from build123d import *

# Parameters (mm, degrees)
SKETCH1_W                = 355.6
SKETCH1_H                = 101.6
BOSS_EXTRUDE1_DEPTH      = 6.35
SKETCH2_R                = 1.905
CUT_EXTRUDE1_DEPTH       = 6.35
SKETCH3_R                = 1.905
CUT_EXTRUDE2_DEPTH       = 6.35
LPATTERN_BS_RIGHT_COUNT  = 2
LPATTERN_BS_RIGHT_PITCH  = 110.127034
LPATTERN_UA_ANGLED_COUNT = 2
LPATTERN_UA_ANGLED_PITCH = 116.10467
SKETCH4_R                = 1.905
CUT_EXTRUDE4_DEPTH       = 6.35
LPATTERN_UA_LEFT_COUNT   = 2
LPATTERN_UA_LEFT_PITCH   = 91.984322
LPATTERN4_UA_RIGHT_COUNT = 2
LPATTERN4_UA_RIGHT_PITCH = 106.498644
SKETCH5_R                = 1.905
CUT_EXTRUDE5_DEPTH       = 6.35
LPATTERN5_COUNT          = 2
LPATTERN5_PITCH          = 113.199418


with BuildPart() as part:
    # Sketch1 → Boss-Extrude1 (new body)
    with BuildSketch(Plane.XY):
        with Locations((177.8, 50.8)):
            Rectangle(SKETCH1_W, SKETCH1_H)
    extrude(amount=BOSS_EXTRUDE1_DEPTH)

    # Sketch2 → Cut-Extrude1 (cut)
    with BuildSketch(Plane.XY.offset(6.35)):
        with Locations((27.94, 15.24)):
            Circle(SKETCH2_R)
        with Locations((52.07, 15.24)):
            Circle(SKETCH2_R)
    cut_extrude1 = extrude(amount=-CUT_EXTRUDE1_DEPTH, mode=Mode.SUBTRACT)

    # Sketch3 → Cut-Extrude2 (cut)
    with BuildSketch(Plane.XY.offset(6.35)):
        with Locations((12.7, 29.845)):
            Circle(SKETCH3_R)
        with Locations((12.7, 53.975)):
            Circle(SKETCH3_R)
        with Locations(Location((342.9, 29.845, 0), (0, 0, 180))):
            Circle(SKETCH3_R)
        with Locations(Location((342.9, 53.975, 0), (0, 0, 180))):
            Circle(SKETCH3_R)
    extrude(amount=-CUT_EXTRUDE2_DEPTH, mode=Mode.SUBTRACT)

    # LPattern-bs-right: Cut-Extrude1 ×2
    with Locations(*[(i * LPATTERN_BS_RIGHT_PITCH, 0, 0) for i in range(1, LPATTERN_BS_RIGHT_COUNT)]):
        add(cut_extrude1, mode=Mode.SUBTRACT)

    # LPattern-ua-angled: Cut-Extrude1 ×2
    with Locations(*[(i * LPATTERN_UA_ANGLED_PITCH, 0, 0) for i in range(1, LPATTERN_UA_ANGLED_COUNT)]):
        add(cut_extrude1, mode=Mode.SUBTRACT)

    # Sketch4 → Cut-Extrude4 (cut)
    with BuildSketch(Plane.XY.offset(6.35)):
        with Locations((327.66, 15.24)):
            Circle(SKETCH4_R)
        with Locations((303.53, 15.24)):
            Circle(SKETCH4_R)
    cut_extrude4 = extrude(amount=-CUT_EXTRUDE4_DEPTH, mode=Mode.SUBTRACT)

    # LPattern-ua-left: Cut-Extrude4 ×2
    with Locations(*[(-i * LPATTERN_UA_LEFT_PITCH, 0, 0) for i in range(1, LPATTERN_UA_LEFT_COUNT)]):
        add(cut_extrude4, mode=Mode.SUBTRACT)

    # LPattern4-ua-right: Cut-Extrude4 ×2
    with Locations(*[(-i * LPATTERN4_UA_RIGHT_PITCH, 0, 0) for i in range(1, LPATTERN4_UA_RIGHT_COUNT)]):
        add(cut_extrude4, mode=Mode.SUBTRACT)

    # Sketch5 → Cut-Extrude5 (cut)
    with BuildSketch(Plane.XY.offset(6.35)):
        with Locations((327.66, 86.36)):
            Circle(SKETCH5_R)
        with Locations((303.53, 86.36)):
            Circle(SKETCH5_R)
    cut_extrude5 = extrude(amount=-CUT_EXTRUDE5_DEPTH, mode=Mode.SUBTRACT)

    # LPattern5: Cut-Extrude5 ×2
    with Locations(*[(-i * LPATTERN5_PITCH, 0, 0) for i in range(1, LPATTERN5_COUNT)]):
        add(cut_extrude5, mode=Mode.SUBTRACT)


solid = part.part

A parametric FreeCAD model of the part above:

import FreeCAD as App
import Part
import Sketcher

V = App.Vector
Q = App.Units.Quantity

doc = App.newDocument("Part")
body = doc.addObject("PartDesign::Body", "Body")

# Sketch on XY plane
sketch1 = body.newObject("Sketcher::SketchObject", "Sketch")
sketch1.AttachmentSupport = (doc.getObject("XY_Plane"), [""])
sketch1.MapMode = "FlatFace"
sketch1.addGeometry([
    Part.LineSegment(V(0, 102, 0), V(0, 0, 0)),
    Part.LineSegment(V(0, 0, 0), V(356, 0, 0)),
    Part.LineSegment(V(356, 0, 0), V(356, 102, 0)),
    Part.LineSegment(V(356, 102, 0), V(0, 102, 0)),
], False)
sketch1.addConstraint([
    Sketcher.Constraint("Coincident", 0, 2, 1, 1),
    Sketcher.Constraint("Coincident", 1, 2, 2, 1),
    Sketcher.Constraint("Coincident", 2, 2, 3, 1),
    Sketcher.Constraint("Coincident", 3, 2, 0, 1),
    Sketcher.Constraint("Vertical", 0),
    Sketcher.Constraint("Horizontal", 1),
    Sketcher.Constraint("Vertical", 2),
    Sketcher.Constraint("Horizontal", 3),
    Sketcher.Constraint("Coincident", 0, 2, -1, 1),
    Sketcher.Constraint("DistanceX", 1, 1, 1, 2, Q("14 in")),
    Sketcher.Constraint("DistanceY", 0, 2, 0, 1, Q("4 in")),
])
pad1 = body.newObject("PartDesign::Pad", "Pad")
pad1.Profile = sketch1
pad1.Length = Q("0.25 in")

# Sketch on XY plane
sketch2 = body.newObject("Sketcher::SketchObject", "Sketch001")
sketch2.AttachmentSupport = (doc.getObject("XY_Plane"), [""])
sketch2.MapMode = "FlatFace"
sketch2.AttachmentOffset = App.Placement(V(0, 0, 0.25 * 25.4), App.Rotation())
sketch2.addGeometry([
    Part.Circle(V(27.9, 15.2, 0), V(0, 0, 1), 1.9),
    Part.Circle(V(52.1, 15.2, 0), V(0, 0, 1), 1.9),
], False)
sketch2.addConstraint([
    Sketcher.Constraint("Equal", 0, 1),
    Sketcher.Constraint("Horizontal", 0, 3, 1, 3),
    Sketcher.Constraint("Diameter", 0, Q("0.15 in")),
    Sketcher.Constraint("DistanceX", -1, 1, 0, 3, Q("1.1 in")),
    Sketcher.Constraint("DistanceY", -1, 1, 0, 3, Q("0.6 in")),
    Sketcher.Constraint("DistanceX", -1, 1, 1, 3, Q("2.05 in")),
])
pocket1 = body.newObject("PartDesign::Pocket", "Pocket")
pocket1.Profile = sketch2
pocket1.Length = Q("0.25 in")

# Sketch on XY plane
sketch3 = body.newObject("Sketcher::SketchObject", "Sketch002")
sketch3.AttachmentSupport = (doc.getObject("XY_Plane"), [""])
sketch3.MapMode = "FlatFace"
sketch3.AttachmentOffset = App.Placement(V(0, 0, 0.25 * 25.4), App.Rotation())
sketch3.addGeometry([
    Part.Circle(V(12.7, 29.8, 0), V(0, 0, 1), 1.9),
    Part.Circle(V(12.7, 54, 0), V(0, 0, 1), 1.9),
    Part.Circle(V(342.9, 29.8, 0), V(0, 0, 1), 1.9),
    Part.Circle(V(342.9, 54, 0), V(0, 0, 1), 1.9),
], False)
sketch3.addConstraint([
    Sketcher.Constraint("Equal", 0, 1),
    Sketcher.Constraint("Equal", 1, 2),
    Sketcher.Constraint("Equal", 2, 3),
    Sketcher.Constraint("Horizontal", 0, 3, 2, 3),
    Sketcher.Constraint("Horizontal", 1, 3, 3, 3),
    Sketcher.Constraint("Vertical", 0, 3, 1, 3),
    Sketcher.Constraint("Vertical", 2, 3, 3, 3),
    Sketcher.Constraint("Diameter", 0, Q("0.15 in")),
    Sketcher.Constraint("DistanceX", 0, 3, 2, 3, Q("13 in")),
    Sketcher.Constraint("DistanceX", -1, 1, 0, 3, Q("0.5 in")),
    Sketcher.Constraint("DistanceY", 0, 3, 1, 3, Q("0.95 in")),
    Sketcher.Constraint("DistanceY", -1, 1, 0, 3, Q("1.175 in")),
])
pocket2 = body.newObject("PartDesign::Pocket", "Pocket001")
pocket2.Profile = sketch3
pocket2.Length = Q("0.25 in")
doc.recompute()

linearpattern = body.newObject("PartDesign::LinearPattern", "LinearPattern")
linearpattern.Originals = [pocket1]
linearpattern.Direction = (doc.getObject("X_Axis"), [""])
linearpattern.Mode = "offset"
linearpattern.Offset = 110.127034
linearpattern.Occurrences = 2
body.Tip = linearpattern
doc.recompute()

linearpattern2 = body.newObject("PartDesign::LinearPattern", "LinearPattern001")
linearpattern2.Originals = [pocket1]
linearpattern2.Direction = (doc.getObject("X_Axis"), [""])
linearpattern2.Mode = "offset"
linearpattern2.Offset = 116.10467
linearpattern2.Occurrences = 2
body.Tip = linearpattern2

# Sketch on XY plane
sketch4 = body.newObject("Sketcher::SketchObject", "Sketch003")
sketch4.AttachmentSupport = (doc.getObject("XY_Plane"), [""])
sketch4.MapMode = "FlatFace"
sketch4.AttachmentOffset = App.Placement(V(0, 0, 0.25 * 25.4), App.Rotation())
sketch4.addGeometry([
    Part.Circle(V(327.7, 15.2, 0), V(0, 0, 1), 1.9),
    Part.Circle(V(303.5, 15.2, 0), V(0, 0, 1), 1.9),
], False)
sketch4.addConstraint([
    Sketcher.Constraint("Equal", 0, 1),
    Sketcher.Constraint("Horizontal", 0, 3, 1, 3),
    Sketcher.Constraint("Diameter", 0, Q("0.15 in")),
    Sketcher.Constraint("DistanceX", -1, 1, 0, 3, Q("12.9 in")),
    Sketcher.Constraint("DistanceY", -1, 1, 0, 3, Q("0.6 in")),
    Sketcher.Constraint("DistanceX", -1, 1, 1, 3, Q("11.95 in")),
])
pocket3 = body.newObject("PartDesign::Pocket", "Pocket002")
pocket3.Profile = sketch4
pocket3.Length = Q("0.25 in")
doc.recompute()

linearpattern3 = body.newObject("PartDesign::LinearPattern", "LinearPattern002")
linearpattern3.Originals = [pocket3]
linearpattern3.Direction = (doc.getObject("X_Axis"), [""])
linearpattern3.Mode = "offset"
linearpattern3.Offset = 91.984322
linearpattern3.Occurrences = 2
linearpattern3.Reversed = True
body.Tip = linearpattern3
doc.recompute()

linearpattern4 = body.newObject("PartDesign::LinearPattern", "LinearPattern003")
linearpattern4.Originals = [pocket3]
linearpattern4.Direction = (doc.getObject("X_Axis"), [""])
linearpattern4.Mode = "offset"
linearpattern4.Offset = 106.498644
linearpattern4.Occurrences = 2
linearpattern4.Reversed = True
body.Tip = linearpattern4

# Sketch on XY plane
sketch5 = body.newObject("Sketcher::SketchObject", "Sketch004")
sketch5.AttachmentSupport = (doc.getObject("XY_Plane"), [""])
sketch5.MapMode = "FlatFace"
sketch5.AttachmentOffset = App.Placement(V(0, 0, 0.25 * 25.4), App.Rotation())
sketch5.addGeometry([
    Part.Circle(V(327.7, 86.4, 0), V(0, 0, 1), 1.9),
    Part.Circle(V(303.5, 86.4, 0), V(0, 0, 1), 1.9),
], False)
sketch5.addConstraint([
    Sketcher.Constraint("Equal", 0, 1),
    Sketcher.Constraint("Horizontal", 0, 3, 1, 3),
    Sketcher.Constraint("Diameter", 0, Q("0.15 in")),
    Sketcher.Constraint("DistanceX", -1, 1, 0, 3, Q("12.9 in")),
    Sketcher.Constraint("DistanceY", -1, 1, 0, 3, Q("3.4 in")),
    Sketcher.Constraint("DistanceX", -1, 1, 1, 3, Q("11.95 in")),
])
pocket4 = body.newObject("PartDesign::Pocket", "Pocket003")
pocket4.Profile = sketch5
pocket4.Length = Q("0.25 in")
doc.recompute()

linearpattern5 = body.newObject("PartDesign::LinearPattern", "LinearPattern004")
linearpattern5.Originals = [pocket4]
linearpattern5.Direction = (doc.getObject("X_Axis"), [""])
linearpattern5.Mode = "offset"
linearpattern5.Offset = 113.199418
linearpattern5.Occurrences = 2
linearpattern5.Reversed = True
body.Tip = linearpattern5

doc.recompute()
